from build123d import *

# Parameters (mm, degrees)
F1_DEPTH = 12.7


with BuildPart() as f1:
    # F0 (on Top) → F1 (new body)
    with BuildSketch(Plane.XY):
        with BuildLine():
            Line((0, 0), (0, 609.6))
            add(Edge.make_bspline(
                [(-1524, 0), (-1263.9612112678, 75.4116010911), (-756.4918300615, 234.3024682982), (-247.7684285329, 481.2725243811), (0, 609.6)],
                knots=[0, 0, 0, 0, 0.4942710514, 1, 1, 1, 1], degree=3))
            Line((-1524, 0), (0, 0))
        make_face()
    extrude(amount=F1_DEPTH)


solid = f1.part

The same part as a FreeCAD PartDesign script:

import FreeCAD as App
import Part
import Sketcher
Q = App.Units.Quantity

doc = App.newDocument("Part")
body = doc.addObject("PartDesign::Body", "Body")

# Sketch on XY plane
sketch1 = doc.addObject("Sketcher::SketchObject", "Sketch")
body.addObject(sketch1)
sketch1.AttachmentSupport = (doc.XY_Plane, [""])
sketch1.MapMode = "FlatFace"
sketch1.addGeometry(Part.LineSegment(App.Vector(0, 0, 0), App.Vector(0, 609.6, 0)), False)
sketch1.addGeometry(Part.BSplineCurve([App.Vector(-1524, 0, 0), App.Vector(-1263.961211, 75.411601, 0), App.Vector(-756.49183, 234.302468, 0), App.Vector(-247.768429, 481.272524, 0), App.Vector(0, 609.6, 0)], [4, 1, 4], [0, 0.494271051, 1], False, 3, [1, 1, 1, 1, 1], False), False)
sketch1.addGeometry(Part.LineSegment(App.Vector(-1524, 0, 0), App.Vector(0, 0, 0)), False)
sketch1.addConstraint(Sketcher.Constraint("Block", 1))
sketch1.addConstraint(Sketcher.Constraint("Coincident", 0, 2, 1, 2))
sketch1.addConstraint(Sketcher.Constraint("Coincident", 1, 1, 2, 1))
sketch1.addConstraint(Sketcher.Constraint("Coincident", 2, 2, 0, 1))
sketch1.addConstraint(Sketcher.Constraint("Vertical", 0))
sketch1.addConstraint(Sketcher.Constraint("Horizontal", 2))
pad1 = doc.addObject("PartDesign::Pad", "Pad")
body.addObject(pad1)
pad1.Profile = sketch1
pad1.Length = Q("0.5 in")

doc.recompute()
